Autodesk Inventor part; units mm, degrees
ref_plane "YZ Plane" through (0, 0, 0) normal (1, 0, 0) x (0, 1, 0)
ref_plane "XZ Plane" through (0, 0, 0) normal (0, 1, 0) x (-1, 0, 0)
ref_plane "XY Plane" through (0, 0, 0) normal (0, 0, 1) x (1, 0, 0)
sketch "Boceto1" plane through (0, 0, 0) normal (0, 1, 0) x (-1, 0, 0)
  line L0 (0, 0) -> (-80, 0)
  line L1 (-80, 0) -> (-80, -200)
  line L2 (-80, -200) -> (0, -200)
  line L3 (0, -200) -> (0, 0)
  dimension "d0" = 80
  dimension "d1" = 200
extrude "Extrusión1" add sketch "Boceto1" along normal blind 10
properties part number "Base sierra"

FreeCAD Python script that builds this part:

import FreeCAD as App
import Part
import Sketcher

V = App.Vector
Q = App.Units.Quantity

doc = App.newDocument("Part")
body = doc.addObject("PartDesign::Body", "Body")

# Sketch on XZ plane
sketch1 = body.newObject("Sketcher::SketchObject", "Sketch")
sketch1.AttachmentSupport = (doc.getObject("XZ_Plane"), [""])
sketch1.MapMode = "FlatFace"
sketch1.addGeometry(Part.LineSegment(V(0, -200, 0), V(0, 0, 0)), False)
sketch1.addGeometry(Part.LineSegment(V(0, 0, 0), V(80, 0, 0)), False)
sketch1.addGeometry(Part.LineSegment(V(80, 0, 0), V(80, -200, 0)), False)
sketch1.addGeometry(Part.LineSegment(V(80, -200, 0), V(0, -200, 0)), False)
sketch1.addConstraint(Sketcher.Constraint("Coincident", 0, 2, 1, 1))
sketch1.addConstraint(Sketcher.Constraint("Coincident", 1, 2, 2, 1))
sketch1.addConstraint(Sketcher.Constraint("Coincident", 2, 2, 3, 1))
sketch1.addConstraint(Sketcher.Constraint("Coincident", 3, 2, 0, 1))
sketch1.addConstraint(Sketcher.Constraint("Vertical", 0))
sketch1.addConstraint(Sketcher.Constraint("Horizontal", 1))
sketch1.addConstraint(Sketcher.Constraint("Vertical", 2))
sketch1.addConstraint(Sketcher.Constraint("Horizontal", 3))
sketch1.addConstraint(Sketcher.Constraint("Coincident", 0, 2, -1, 1))
sketch1.addConstraint(Sketcher.Constraint("DistanceX", 1, 1, 1, 2, Q("80 mm")))
sketch1.addConstraint(Sketcher.Constraint("DistanceY", 0, 1, 0, 2, Q("200 mm")))
pad1 = body.newObject("PartDesign::Pad", "Pad")
pad1.Profile = sketch1
pad1.Length = 10
pad1.Reversed = True

doc.recompute()
